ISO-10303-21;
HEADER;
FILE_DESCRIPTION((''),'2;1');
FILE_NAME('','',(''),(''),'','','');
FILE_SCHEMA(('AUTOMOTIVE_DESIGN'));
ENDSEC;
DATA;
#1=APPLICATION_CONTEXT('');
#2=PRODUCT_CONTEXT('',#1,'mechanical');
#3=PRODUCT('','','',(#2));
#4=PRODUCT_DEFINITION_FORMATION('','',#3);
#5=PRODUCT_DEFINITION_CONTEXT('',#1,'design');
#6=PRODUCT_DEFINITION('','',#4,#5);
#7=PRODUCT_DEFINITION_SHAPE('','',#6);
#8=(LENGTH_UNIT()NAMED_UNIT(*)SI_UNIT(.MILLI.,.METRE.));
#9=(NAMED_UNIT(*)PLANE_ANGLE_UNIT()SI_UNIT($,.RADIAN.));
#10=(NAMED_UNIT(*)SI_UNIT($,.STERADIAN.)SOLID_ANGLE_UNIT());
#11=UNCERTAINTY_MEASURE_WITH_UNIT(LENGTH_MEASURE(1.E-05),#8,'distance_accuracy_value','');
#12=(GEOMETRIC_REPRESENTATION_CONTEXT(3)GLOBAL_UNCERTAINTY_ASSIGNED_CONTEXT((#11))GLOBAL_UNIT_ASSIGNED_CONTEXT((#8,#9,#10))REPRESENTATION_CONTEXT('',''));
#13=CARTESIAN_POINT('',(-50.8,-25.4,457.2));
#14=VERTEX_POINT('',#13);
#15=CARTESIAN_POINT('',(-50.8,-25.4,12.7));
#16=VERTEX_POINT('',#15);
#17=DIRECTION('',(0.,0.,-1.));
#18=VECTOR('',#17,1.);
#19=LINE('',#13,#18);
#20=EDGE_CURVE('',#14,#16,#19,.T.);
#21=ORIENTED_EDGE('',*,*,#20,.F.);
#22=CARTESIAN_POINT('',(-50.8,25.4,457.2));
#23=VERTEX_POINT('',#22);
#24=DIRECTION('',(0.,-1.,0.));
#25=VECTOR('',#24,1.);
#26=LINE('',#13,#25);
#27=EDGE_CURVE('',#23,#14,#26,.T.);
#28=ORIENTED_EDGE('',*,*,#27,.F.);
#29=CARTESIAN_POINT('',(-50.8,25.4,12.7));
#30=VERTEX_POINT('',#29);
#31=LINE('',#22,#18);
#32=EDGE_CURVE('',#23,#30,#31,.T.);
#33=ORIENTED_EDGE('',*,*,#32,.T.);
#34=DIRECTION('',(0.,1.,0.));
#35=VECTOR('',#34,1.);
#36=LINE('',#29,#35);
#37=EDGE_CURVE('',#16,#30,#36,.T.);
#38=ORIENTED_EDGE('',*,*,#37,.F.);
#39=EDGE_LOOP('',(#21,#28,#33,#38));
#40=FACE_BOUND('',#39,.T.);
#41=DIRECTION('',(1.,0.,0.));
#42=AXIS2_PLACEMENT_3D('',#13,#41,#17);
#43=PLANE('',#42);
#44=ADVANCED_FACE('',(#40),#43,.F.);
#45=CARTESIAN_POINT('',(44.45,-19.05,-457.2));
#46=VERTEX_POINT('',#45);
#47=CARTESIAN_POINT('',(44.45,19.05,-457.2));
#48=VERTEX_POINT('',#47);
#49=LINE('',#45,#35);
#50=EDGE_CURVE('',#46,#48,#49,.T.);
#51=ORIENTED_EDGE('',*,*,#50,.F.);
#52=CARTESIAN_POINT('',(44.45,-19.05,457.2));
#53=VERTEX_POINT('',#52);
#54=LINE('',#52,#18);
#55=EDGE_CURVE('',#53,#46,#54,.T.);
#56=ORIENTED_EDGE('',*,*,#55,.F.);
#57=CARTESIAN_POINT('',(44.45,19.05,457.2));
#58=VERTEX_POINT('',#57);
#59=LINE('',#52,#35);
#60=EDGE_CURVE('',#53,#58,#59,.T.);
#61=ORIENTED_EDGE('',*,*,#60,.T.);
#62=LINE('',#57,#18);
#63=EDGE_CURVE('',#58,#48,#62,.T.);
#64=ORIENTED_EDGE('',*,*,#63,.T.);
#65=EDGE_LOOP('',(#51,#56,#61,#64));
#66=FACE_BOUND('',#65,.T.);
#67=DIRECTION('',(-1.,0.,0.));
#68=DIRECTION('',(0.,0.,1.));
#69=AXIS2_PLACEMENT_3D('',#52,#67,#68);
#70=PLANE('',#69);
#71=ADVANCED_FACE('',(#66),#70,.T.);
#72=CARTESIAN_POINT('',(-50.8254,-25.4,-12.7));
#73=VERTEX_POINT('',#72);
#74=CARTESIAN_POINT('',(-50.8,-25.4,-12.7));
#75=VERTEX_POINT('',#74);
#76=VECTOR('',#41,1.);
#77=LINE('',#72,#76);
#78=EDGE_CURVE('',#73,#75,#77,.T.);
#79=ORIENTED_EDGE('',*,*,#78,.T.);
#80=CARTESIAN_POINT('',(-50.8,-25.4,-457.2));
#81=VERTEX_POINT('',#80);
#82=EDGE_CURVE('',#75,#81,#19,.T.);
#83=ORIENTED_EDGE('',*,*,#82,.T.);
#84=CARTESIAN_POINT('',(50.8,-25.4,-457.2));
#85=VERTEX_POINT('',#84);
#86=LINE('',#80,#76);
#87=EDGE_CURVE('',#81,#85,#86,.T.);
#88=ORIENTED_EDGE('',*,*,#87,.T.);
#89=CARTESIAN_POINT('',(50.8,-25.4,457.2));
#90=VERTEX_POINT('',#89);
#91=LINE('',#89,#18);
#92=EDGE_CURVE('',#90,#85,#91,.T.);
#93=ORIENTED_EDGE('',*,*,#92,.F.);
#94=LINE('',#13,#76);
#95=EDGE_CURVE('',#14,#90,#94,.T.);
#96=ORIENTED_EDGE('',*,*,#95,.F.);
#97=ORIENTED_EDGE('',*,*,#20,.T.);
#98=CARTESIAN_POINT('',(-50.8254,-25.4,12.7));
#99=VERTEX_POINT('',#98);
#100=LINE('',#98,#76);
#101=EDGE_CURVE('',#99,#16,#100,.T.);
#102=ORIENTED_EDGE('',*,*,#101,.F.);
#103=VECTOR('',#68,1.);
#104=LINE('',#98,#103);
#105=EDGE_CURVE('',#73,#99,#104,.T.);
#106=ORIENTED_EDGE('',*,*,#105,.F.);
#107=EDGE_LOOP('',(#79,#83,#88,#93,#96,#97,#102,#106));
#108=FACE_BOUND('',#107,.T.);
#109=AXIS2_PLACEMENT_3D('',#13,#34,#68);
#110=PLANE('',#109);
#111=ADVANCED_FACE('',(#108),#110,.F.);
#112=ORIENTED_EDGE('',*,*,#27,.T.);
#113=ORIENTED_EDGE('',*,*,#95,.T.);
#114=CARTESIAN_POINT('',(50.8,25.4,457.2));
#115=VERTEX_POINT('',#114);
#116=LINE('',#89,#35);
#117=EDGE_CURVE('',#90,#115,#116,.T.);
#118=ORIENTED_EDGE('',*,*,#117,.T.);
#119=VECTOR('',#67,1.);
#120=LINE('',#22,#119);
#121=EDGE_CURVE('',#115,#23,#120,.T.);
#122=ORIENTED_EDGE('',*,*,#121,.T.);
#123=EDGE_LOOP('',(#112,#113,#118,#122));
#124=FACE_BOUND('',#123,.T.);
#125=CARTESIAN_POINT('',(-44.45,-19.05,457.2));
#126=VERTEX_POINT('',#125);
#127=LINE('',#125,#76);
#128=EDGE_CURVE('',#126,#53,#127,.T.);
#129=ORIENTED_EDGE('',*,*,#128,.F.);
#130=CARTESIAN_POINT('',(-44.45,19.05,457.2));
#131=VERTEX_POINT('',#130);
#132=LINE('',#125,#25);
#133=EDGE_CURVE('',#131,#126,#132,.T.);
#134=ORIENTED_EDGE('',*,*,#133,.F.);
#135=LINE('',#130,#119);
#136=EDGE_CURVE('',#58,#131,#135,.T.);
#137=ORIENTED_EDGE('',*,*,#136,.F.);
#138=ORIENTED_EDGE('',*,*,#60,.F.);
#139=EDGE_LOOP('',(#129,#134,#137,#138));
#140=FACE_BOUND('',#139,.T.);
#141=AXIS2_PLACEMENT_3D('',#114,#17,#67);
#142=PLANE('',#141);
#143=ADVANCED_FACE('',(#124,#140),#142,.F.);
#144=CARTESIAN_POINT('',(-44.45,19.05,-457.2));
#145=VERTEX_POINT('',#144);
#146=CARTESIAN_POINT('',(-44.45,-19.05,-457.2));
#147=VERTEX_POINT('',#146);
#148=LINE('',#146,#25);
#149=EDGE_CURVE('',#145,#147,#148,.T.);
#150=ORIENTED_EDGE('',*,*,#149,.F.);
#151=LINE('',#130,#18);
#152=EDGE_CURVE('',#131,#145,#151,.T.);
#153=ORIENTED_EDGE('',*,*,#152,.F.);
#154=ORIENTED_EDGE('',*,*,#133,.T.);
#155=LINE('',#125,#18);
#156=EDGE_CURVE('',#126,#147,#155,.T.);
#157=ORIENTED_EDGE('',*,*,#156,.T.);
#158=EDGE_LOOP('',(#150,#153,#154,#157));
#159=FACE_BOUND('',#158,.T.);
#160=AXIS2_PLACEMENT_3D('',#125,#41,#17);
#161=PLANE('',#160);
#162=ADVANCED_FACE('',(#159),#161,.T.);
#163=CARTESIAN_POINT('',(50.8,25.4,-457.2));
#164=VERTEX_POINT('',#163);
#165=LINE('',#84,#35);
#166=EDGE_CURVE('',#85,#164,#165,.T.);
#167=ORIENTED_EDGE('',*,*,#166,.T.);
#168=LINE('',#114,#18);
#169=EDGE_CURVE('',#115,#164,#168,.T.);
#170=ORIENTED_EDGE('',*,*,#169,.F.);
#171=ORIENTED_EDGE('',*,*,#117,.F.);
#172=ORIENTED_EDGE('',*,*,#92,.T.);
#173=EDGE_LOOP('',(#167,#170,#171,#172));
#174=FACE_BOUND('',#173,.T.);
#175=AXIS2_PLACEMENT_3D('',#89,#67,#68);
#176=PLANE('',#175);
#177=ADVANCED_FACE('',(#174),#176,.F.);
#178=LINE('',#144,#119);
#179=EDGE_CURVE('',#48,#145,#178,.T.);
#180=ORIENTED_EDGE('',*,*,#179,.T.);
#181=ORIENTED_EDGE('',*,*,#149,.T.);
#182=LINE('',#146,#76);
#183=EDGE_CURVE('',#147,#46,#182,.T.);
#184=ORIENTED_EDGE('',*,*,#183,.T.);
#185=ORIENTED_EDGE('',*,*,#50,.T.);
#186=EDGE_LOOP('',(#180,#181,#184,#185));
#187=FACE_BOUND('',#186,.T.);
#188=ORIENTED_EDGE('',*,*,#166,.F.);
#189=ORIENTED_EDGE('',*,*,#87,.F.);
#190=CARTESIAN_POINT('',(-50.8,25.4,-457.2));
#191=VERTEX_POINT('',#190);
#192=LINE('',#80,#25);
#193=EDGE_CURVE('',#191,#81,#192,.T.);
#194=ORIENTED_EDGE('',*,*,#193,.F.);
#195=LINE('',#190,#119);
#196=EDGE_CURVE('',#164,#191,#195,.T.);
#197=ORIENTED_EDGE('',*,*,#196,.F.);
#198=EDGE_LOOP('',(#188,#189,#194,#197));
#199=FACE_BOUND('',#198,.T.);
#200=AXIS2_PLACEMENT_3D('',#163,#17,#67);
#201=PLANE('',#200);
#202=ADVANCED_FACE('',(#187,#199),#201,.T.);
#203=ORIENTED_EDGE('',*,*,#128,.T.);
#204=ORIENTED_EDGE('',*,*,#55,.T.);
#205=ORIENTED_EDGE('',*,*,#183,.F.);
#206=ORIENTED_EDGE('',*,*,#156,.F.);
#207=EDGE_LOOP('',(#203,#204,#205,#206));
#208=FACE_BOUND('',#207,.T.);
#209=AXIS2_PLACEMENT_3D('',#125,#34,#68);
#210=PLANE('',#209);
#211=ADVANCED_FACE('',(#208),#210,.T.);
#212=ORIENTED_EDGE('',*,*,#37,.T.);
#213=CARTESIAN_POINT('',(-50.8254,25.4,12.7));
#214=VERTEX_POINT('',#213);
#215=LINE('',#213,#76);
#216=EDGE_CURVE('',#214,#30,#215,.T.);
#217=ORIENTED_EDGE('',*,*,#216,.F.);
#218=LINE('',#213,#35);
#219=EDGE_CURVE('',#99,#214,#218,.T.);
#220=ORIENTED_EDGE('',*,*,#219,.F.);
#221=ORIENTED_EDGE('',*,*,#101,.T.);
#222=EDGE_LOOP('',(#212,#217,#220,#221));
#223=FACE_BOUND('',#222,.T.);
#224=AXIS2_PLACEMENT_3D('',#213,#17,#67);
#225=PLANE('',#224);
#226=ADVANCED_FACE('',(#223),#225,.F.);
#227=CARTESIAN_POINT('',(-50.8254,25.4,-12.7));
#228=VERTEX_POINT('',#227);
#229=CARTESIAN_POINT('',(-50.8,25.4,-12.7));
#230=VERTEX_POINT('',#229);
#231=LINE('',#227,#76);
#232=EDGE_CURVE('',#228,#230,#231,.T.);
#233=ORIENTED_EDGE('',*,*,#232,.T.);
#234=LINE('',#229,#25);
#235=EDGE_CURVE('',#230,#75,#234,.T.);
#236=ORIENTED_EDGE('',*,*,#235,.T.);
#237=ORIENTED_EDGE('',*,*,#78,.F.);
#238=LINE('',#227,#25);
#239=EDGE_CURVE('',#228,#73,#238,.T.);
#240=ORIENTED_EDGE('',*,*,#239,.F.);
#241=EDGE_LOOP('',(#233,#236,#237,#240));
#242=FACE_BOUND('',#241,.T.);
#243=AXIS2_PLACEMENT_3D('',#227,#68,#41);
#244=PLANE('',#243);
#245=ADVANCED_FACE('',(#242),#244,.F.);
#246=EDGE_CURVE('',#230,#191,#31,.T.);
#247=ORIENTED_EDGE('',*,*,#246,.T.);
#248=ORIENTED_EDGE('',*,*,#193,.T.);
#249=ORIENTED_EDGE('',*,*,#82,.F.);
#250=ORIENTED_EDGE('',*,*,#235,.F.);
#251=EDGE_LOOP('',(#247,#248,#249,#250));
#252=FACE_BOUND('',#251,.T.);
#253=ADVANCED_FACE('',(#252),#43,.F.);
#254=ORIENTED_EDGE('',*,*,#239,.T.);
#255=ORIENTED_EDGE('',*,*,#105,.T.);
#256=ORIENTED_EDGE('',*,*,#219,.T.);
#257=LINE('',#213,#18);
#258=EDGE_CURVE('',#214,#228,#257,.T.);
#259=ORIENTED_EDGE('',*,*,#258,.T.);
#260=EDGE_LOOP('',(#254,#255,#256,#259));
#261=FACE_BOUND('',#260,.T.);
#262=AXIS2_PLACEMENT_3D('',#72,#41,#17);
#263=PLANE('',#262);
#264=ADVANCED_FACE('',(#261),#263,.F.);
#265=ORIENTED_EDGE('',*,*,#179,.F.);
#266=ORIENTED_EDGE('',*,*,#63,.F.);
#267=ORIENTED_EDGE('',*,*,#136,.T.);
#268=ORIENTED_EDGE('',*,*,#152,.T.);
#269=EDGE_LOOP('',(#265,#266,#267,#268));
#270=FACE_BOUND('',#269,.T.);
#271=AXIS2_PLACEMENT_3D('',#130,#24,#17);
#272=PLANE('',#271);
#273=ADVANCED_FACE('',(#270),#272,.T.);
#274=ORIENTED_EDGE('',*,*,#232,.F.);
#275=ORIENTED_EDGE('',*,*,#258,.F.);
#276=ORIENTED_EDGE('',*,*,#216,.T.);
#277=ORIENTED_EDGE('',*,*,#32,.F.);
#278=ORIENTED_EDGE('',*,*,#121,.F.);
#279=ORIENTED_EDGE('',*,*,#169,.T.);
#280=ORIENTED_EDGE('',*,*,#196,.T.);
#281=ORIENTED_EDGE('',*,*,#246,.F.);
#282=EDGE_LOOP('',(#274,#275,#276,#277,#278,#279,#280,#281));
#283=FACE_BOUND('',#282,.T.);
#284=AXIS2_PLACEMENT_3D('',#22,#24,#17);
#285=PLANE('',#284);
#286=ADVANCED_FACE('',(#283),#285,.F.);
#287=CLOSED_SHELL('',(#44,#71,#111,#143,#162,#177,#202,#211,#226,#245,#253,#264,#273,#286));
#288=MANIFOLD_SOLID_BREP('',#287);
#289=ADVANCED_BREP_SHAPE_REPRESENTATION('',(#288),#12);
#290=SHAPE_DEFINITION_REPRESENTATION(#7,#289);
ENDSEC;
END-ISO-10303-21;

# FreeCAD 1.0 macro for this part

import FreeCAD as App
import Part
import Sketcher
from FreeCAD import Vector
Q = App.Units.Quantity


def add_polygon(sketch, points):
    """Adds a closed chain of lines whose ends are joined by coincident constraints."""
    first, n = sketch.GeometryCount, len(points)
    for a, b in zip(points, points[1:] + points[:1]):
        sketch.addGeometry(Part.LineSegment(App.Vector(*a, 0), App.Vector(*b, 0)), False)
    for i in range(n):
        sketch.addConstraint(Sketcher.Constraint("Coincident", first + i, 2, first + (i + 1) % n, 1))

doc = App.newDocument("Part")
body = doc.addObject("PartDesign::Body", "Body")

# Sketch on XY plane
sketch1 = body.newObject("Sketcher::SketchObject", "Sketch")
sketch1.AttachmentSupport = (doc.getObject("XY_Plane"), [""])
sketch1.MapMode = "FlatFace"
add_polygon(sketch1, [(-51, 25), (-51, -25), (51, -25), (51, 25)])  # lines 0-3
add_polygon(sketch1, [(44, -19), (-44, -19), (-44, 19), (44, 19)])  # lines 4-7
sketch1.addConstraint([
    Sketcher.Constraint("Vertical", 0),
    Sketcher.Constraint("Horizontal", 1),
    Sketcher.Constraint("Vertical", 2),
    Sketcher.Constraint("Horizontal", 3),
    Sketcher.Constraint("Horizontal", 4),
    Sketcher.Constraint("Vertical", 5),
    Sketcher.Constraint("Horizontal", 6),
    Sketcher.Constraint("Vertical", 7),
    Sketcher.Constraint("Symmetric", 0, 2, 2, 2, -1, 1),
    Sketcher.Constraint("Symmetric", 4, 2, 6, 2, -1, 1),
    Sketcher.Constraint("DistanceX", 1, 1, 1, 2, Q("4 in")),
    Sketcher.Constraint("DistanceY", 0, 2, 0, 1, Q("2 in")),
    Sketcher.Constraint("DistanceX", 4, 2, 4, 1, Q("3.5 in")),
    Sketcher.Constraint("DistanceY", 5, 1, 5, 2, Q("1.5 in")),
])
pad1 = body.newObject("PartDesign::Pad", "Pad")
pad1.Profile = sketch1
pad1.Length = Q("36 in")
pad1.Midplane = True

# Sketch on YZ plane
sketch2 = body.newObject("Sketcher::SketchObject", "Sketch001")
sketch2.AttachmentSupport = (doc.getObject("YZ_Plane"), [""])
sketch2.MapMode = "FlatFace"
sketch2.AttachmentOffset = App.Placement(Vector(0, 0, -2 * 25.4), App.Rotation())
add_polygon(sketch2, [(25, -13), (-25, -13), (-25, 13), (25, 13)])  # lines 0-3
sketch2.addConstraint([
    Sketcher.Constraint("Horizontal", 0),
    Sketcher.Constraint("Vertical", 1),
    Sketcher.Constraint("Horizontal", 2),
    Sketcher.Constraint("Vertical", 3),
    Sketcher.Constraint("Symmetric", 0, 2, 2, 2, -1, 1),
    Sketcher.Constraint("DistanceX", 0, 2, 0, 1, Q("2 in")),
    Sketcher.Constraint("DistanceY", 1, 1, 1, 2, Q("1 in")),
])
pad2 = body.newObject("PartDesign::Pad", "Pad001")
pad2.Profile = sketch2
pad2.Length = Q("0.001 in")
pad2.Reversed = True

doc.recompute()
